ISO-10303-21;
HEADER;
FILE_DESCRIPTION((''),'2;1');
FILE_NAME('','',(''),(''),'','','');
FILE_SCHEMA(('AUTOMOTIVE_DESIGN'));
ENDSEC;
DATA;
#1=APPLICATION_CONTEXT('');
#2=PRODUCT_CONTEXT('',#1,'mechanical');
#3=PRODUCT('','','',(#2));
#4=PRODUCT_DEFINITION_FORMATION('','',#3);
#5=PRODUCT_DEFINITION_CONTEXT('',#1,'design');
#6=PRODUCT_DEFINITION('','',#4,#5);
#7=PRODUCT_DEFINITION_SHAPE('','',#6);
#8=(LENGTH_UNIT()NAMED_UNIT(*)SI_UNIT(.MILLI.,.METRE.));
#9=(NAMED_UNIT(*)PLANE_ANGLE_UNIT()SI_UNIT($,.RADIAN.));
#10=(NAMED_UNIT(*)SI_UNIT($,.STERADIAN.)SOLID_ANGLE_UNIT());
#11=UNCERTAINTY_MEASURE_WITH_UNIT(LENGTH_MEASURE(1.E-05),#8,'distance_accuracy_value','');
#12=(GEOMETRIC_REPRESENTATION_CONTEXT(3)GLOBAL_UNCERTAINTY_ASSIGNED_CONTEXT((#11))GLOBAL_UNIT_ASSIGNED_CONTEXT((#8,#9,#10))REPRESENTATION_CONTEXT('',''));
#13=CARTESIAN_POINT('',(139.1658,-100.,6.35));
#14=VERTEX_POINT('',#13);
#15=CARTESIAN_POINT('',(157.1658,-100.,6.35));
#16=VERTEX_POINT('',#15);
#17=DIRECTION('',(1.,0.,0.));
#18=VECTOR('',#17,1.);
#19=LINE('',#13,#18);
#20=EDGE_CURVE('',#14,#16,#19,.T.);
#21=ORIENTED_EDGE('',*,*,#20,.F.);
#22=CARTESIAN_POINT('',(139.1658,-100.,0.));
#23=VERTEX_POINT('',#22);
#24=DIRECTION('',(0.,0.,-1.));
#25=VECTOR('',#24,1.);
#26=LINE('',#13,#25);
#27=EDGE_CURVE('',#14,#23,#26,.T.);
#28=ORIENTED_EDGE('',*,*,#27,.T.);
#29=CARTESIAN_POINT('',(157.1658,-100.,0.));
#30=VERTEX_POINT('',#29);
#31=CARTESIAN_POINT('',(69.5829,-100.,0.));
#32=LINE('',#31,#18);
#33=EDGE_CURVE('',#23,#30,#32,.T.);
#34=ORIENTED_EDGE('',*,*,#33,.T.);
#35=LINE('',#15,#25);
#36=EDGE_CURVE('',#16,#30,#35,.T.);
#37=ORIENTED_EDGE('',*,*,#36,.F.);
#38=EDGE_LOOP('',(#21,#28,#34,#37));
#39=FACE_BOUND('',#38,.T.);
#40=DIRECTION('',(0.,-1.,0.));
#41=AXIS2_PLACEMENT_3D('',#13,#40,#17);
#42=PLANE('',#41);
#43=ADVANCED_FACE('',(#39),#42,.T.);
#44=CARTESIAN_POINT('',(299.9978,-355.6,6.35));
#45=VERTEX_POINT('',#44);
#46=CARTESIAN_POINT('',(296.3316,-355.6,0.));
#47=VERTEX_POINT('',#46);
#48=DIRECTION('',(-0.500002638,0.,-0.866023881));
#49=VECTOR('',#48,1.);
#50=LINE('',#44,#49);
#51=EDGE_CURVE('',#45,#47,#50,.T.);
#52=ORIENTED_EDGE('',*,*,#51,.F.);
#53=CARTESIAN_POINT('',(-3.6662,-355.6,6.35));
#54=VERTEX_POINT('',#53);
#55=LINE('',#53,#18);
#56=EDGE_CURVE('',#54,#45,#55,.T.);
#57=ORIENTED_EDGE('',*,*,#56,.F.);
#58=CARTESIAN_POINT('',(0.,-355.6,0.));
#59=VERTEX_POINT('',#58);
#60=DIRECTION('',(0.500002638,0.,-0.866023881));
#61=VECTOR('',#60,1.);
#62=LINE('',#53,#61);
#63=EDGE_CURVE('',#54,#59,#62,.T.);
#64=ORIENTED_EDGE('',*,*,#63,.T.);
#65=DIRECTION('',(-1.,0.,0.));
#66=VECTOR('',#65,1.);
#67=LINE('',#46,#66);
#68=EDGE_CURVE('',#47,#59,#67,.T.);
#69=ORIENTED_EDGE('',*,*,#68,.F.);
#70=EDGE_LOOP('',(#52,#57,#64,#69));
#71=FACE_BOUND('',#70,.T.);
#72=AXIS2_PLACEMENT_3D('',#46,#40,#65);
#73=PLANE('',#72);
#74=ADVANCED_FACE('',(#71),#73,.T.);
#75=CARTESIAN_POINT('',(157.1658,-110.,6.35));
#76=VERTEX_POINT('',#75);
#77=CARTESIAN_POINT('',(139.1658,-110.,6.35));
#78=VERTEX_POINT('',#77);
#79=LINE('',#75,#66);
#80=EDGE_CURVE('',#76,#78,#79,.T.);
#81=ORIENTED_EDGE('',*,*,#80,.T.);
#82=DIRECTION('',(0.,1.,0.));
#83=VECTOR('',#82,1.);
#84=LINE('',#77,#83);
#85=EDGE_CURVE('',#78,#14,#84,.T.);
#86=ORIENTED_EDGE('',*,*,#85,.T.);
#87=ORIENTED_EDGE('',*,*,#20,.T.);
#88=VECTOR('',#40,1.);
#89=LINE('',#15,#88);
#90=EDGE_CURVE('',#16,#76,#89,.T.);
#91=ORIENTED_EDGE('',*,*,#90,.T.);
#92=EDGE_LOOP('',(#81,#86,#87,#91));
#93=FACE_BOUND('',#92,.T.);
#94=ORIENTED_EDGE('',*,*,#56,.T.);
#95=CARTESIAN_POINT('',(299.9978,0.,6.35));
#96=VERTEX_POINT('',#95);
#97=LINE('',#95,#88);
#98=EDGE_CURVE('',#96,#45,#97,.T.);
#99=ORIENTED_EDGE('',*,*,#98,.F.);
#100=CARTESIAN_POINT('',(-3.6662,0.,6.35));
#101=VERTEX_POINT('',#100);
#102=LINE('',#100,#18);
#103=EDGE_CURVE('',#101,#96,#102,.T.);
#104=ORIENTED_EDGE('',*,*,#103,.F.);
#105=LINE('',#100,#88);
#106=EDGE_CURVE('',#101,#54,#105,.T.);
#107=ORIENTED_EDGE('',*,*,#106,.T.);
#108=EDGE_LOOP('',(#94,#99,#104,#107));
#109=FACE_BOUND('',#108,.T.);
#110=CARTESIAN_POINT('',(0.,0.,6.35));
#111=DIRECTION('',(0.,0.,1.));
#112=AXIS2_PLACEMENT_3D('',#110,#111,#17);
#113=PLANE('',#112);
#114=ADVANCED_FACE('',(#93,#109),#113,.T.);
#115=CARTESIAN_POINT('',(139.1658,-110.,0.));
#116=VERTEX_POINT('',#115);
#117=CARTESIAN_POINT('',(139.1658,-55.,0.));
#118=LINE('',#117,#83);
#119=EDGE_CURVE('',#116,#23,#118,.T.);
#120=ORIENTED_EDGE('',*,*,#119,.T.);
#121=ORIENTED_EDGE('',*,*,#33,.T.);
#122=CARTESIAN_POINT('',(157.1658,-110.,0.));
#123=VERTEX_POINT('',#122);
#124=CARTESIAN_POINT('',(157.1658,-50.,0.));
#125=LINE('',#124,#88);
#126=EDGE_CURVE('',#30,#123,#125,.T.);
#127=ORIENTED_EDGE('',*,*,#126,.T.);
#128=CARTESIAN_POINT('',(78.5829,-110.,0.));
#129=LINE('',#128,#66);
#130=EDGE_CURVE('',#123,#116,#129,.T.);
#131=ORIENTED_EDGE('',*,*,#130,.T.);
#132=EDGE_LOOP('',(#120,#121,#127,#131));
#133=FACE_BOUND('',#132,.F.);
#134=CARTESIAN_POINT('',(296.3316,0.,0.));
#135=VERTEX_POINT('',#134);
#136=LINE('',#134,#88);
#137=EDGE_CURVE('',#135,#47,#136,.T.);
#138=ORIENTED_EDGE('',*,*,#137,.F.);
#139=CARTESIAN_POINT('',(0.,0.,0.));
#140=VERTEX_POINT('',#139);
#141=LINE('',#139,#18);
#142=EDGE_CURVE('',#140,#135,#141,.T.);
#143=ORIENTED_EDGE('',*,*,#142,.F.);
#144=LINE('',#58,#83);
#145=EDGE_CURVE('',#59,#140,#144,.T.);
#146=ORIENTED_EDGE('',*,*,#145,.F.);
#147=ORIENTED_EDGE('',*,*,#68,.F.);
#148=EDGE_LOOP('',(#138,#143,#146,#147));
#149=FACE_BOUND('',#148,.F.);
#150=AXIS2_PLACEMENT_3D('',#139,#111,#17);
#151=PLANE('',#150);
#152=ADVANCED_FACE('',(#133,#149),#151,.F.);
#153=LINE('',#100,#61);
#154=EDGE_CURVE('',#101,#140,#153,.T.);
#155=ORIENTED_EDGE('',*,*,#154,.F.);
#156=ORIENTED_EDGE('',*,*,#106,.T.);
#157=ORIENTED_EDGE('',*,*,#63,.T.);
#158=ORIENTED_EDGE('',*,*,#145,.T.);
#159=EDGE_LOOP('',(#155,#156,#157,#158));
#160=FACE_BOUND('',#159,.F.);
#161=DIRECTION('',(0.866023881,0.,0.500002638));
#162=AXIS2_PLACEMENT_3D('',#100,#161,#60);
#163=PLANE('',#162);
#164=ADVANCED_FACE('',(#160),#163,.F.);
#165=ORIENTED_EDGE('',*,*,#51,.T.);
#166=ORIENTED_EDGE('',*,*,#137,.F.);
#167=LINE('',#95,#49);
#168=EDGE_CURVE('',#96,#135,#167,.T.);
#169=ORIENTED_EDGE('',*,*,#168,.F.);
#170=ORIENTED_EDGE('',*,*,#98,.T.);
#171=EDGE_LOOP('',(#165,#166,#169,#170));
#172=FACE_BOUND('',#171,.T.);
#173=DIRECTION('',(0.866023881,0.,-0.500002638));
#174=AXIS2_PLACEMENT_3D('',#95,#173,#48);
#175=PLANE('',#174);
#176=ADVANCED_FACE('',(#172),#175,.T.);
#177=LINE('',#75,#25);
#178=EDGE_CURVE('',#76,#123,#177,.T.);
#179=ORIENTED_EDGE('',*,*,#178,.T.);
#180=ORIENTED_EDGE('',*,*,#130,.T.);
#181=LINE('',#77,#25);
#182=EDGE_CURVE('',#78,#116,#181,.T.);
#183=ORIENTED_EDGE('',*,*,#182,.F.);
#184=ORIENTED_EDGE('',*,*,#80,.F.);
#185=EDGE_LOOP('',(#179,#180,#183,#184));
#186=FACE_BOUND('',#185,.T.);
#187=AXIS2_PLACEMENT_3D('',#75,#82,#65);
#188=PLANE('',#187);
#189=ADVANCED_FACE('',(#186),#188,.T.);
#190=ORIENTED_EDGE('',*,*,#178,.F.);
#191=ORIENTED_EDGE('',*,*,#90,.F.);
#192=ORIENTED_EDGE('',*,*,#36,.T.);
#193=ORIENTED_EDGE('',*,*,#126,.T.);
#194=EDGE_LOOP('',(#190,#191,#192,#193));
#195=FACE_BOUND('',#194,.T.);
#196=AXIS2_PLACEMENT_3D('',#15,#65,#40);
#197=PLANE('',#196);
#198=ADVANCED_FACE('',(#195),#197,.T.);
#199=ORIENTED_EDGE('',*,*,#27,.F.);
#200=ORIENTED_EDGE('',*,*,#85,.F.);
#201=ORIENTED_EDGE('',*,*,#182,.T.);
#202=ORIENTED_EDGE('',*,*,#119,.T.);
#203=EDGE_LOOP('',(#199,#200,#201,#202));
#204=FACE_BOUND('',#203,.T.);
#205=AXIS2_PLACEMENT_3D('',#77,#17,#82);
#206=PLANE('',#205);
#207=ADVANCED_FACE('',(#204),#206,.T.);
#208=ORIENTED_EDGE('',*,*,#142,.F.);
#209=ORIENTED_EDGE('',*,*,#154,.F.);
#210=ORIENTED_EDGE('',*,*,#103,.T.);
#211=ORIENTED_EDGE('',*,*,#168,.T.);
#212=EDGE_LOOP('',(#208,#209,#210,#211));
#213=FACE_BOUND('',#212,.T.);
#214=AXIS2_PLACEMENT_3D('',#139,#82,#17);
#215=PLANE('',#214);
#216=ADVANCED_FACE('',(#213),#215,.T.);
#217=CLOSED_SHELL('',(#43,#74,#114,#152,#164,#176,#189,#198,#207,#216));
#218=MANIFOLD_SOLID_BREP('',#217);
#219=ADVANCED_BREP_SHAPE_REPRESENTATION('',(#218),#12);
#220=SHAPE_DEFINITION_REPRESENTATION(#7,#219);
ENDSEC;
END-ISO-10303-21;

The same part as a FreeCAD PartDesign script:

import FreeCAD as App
import Part
import Sketcher

V = App.Vector
Q = App.Units.Quantity

doc = App.newDocument("Part")
body = doc.addObject("PartDesign::Body", "Body")

# Sketch on XY plane
sketch1 = body.newObject("Sketcher::SketchObject", "Sketch")
sketch1.AttachmentSupport = (doc.getObject("XY_Plane"), [""])
sketch1.MapMode = "FlatFace"
sketch1.addGeometry([
    Part.LineSegment(V(296, 0, 0), V(0, 0, 0)),
    Part.LineSegment(V(0, 0, 0), V(0, -356, 0)),
    Part.LineSegment(V(0, -356, 0), V(296, -356, 0)),
    Part.LineSegment(V(296, -356, 0), V(296, 0, 0)),
], False)
sketch1.addConstraint([
    Sketcher.Constraint("Coincident", 0, 2, 1, 1),
    Sketcher.Constraint("Coincident", 1, 2, 2, 1),
    Sketcher.Constraint("Coincident", 2, 2, 3, 1),
    Sketcher.Constraint("Coincident", 3, 2, 0, 1),
    Sketcher.Constraint("Horizontal", 0),
    Sketcher.Constraint("Vertical", 1),
    Sketcher.Constraint("Horizontal", 2),
    Sketcher.Constraint("Vertical", 3),
    Sketcher.Constraint("Coincident", 0, 2, -1, 1),
    Sketcher.Constraint("DistanceY", 1, 2, 1, 1, Q("14 in")),
    Sketcher.Constraint("DistanceX", 0, 2, 0, 1, Q("11.6666 in")),
])
pad1 = body.newObject("PartDesign::Pad", "Pad")
pad1.Profile = sketch1
pad1.Length = Q("0.25 in")

# Sketch on XZ plane
sketch2 = body.newObject("Sketcher::SketchObject", "Sketch001")
sketch2.AttachmentSupport = (doc.getObject("XZ_Plane"), [""])
sketch2.MapMode = "FlatFace"
sketch2.addGeometry([
    Part.LineSegment(V(-3.7, 6.3, 0), V(0, 6.3, 0)),  # 0
    Part.LineSegment(V(0, 6.3, 0), V(0, 0, 0)),  # 1
    Part.LineSegment(V(0, 0, 0), V(-3.7, 6.3, 0)),  # 2
    Part.LineSegment(V(296.3, 0, 0), V(296.3, 6.3, 0)),  # 3
    Part.LineSegment(V(296.3, 6.3, 0), V(300, 6.3, 0)),  # 4
    Part.LineSegment(V(300, 6.3, 0), V(296.3, 0, 0)),  # 5
], False)
sketch2.addConstraint([
    Sketcher.Constraint("Coincident", 0, 2, 1, 1),
    Sketcher.Constraint("Coincident", 1, 2, 2, 1),
    Sketcher.Constraint("Coincident", 2, 2, 0, 1),
    Sketcher.Constraint("Coincident", 3, 2, 4, 1),
    Sketcher.Constraint("Coincident", 4, 2, 5, 1),
    Sketcher.Constraint("Coincident", 5, 2, 3, 1),
    Sketcher.Constraint("Horizontal", 0),
    Sketcher.Constraint("Vertical", 1),
    Sketcher.Constraint("Vertical", 3),
    Sketcher.Constraint("Horizontal", 4),
    Sketcher.Constraint("Coincident", 1, 2, -1, 1),
    Sketcher.Constraint("PointOnObject", 5, 2, -1),
    Sketcher.Constraint("Horizontal", 2, 2, 3, 2),
    Sketcher.Constraint("Equal", 0, 4),
    Sketcher.Constraint("Angle", 2, Q("120.0002 deg")),
    Sketcher.Constraint("DistanceY", 1, 2, 1, 1, Q("0.25 in")),
    Sketcher.Constraint("DistanceX", -1, 1, 3, 2, Q("11.6666 in")),
])
pad2 = body.newObject("PartDesign::Pad", "Pad001")
pad2.Profile = sketch2
pad2.Length = Q("14 in")

# Sketch on XY plane
sketch3 = body.newObject("Sketcher::SketchObject", "Sketch002")
sketch3.AttachmentSupport = (doc.getObject("XY_Plane"), [""])
sketch3.MapMode = "FlatFace"
sketch3.AttachmentOffset = App.Placement(V(0, 0, 0.25 * 25.4), App.Rotation())
sketch3.addGeometry([
    Part.LineSegment(V(157, -100, 0), V(139, -100, 0)),
    Part.LineSegment(V(139, -100, 0), V(139, -110, 0)),
    Part.LineSegment(V(139, -110, 0), V(157, -110, 0)),
    Part.LineSegment(V(157, -110, 0), V(157, -100, 0)),
], False)
sketch3.addConstraint([
    Sketcher.Constraint("Coincident", 0, 2, 1, 1),
    Sketcher.Constraint("Coincident", 1, 2, 2, 1),
    Sketcher.Constraint("Coincident", 2, 2, 3, 1),
    Sketcher.Constraint("Coincident", 3, 2, 0, 1),
    Sketcher.Constraint("Horizontal", 0),
    Sketcher.Constraint("Vertical", 1),
    Sketcher.Constraint("Horizontal", 2),
    Sketcher.Constraint("Vertical", 3),
    Sketcher.Constraint("DistanceY", 1, 2, 1, 1, Q("0.3937 in")),
    Sketcher.Constraint("DistanceY", 0, 2, -1, 1, Q("3.937 in")),
    Sketcher.Constraint("DistanceX", 0, 2, 0, 1, 18.0),
    Sketcher.Constraint("DistanceX", -1, 1, 0, 2, 139.1658),
])
pocket1 = body.newObject("PartDesign::Pocket", "Pocket")
pocket1.Profile = sketch3
pocket1.Type = "ThroughAll"

doc.recompute()
